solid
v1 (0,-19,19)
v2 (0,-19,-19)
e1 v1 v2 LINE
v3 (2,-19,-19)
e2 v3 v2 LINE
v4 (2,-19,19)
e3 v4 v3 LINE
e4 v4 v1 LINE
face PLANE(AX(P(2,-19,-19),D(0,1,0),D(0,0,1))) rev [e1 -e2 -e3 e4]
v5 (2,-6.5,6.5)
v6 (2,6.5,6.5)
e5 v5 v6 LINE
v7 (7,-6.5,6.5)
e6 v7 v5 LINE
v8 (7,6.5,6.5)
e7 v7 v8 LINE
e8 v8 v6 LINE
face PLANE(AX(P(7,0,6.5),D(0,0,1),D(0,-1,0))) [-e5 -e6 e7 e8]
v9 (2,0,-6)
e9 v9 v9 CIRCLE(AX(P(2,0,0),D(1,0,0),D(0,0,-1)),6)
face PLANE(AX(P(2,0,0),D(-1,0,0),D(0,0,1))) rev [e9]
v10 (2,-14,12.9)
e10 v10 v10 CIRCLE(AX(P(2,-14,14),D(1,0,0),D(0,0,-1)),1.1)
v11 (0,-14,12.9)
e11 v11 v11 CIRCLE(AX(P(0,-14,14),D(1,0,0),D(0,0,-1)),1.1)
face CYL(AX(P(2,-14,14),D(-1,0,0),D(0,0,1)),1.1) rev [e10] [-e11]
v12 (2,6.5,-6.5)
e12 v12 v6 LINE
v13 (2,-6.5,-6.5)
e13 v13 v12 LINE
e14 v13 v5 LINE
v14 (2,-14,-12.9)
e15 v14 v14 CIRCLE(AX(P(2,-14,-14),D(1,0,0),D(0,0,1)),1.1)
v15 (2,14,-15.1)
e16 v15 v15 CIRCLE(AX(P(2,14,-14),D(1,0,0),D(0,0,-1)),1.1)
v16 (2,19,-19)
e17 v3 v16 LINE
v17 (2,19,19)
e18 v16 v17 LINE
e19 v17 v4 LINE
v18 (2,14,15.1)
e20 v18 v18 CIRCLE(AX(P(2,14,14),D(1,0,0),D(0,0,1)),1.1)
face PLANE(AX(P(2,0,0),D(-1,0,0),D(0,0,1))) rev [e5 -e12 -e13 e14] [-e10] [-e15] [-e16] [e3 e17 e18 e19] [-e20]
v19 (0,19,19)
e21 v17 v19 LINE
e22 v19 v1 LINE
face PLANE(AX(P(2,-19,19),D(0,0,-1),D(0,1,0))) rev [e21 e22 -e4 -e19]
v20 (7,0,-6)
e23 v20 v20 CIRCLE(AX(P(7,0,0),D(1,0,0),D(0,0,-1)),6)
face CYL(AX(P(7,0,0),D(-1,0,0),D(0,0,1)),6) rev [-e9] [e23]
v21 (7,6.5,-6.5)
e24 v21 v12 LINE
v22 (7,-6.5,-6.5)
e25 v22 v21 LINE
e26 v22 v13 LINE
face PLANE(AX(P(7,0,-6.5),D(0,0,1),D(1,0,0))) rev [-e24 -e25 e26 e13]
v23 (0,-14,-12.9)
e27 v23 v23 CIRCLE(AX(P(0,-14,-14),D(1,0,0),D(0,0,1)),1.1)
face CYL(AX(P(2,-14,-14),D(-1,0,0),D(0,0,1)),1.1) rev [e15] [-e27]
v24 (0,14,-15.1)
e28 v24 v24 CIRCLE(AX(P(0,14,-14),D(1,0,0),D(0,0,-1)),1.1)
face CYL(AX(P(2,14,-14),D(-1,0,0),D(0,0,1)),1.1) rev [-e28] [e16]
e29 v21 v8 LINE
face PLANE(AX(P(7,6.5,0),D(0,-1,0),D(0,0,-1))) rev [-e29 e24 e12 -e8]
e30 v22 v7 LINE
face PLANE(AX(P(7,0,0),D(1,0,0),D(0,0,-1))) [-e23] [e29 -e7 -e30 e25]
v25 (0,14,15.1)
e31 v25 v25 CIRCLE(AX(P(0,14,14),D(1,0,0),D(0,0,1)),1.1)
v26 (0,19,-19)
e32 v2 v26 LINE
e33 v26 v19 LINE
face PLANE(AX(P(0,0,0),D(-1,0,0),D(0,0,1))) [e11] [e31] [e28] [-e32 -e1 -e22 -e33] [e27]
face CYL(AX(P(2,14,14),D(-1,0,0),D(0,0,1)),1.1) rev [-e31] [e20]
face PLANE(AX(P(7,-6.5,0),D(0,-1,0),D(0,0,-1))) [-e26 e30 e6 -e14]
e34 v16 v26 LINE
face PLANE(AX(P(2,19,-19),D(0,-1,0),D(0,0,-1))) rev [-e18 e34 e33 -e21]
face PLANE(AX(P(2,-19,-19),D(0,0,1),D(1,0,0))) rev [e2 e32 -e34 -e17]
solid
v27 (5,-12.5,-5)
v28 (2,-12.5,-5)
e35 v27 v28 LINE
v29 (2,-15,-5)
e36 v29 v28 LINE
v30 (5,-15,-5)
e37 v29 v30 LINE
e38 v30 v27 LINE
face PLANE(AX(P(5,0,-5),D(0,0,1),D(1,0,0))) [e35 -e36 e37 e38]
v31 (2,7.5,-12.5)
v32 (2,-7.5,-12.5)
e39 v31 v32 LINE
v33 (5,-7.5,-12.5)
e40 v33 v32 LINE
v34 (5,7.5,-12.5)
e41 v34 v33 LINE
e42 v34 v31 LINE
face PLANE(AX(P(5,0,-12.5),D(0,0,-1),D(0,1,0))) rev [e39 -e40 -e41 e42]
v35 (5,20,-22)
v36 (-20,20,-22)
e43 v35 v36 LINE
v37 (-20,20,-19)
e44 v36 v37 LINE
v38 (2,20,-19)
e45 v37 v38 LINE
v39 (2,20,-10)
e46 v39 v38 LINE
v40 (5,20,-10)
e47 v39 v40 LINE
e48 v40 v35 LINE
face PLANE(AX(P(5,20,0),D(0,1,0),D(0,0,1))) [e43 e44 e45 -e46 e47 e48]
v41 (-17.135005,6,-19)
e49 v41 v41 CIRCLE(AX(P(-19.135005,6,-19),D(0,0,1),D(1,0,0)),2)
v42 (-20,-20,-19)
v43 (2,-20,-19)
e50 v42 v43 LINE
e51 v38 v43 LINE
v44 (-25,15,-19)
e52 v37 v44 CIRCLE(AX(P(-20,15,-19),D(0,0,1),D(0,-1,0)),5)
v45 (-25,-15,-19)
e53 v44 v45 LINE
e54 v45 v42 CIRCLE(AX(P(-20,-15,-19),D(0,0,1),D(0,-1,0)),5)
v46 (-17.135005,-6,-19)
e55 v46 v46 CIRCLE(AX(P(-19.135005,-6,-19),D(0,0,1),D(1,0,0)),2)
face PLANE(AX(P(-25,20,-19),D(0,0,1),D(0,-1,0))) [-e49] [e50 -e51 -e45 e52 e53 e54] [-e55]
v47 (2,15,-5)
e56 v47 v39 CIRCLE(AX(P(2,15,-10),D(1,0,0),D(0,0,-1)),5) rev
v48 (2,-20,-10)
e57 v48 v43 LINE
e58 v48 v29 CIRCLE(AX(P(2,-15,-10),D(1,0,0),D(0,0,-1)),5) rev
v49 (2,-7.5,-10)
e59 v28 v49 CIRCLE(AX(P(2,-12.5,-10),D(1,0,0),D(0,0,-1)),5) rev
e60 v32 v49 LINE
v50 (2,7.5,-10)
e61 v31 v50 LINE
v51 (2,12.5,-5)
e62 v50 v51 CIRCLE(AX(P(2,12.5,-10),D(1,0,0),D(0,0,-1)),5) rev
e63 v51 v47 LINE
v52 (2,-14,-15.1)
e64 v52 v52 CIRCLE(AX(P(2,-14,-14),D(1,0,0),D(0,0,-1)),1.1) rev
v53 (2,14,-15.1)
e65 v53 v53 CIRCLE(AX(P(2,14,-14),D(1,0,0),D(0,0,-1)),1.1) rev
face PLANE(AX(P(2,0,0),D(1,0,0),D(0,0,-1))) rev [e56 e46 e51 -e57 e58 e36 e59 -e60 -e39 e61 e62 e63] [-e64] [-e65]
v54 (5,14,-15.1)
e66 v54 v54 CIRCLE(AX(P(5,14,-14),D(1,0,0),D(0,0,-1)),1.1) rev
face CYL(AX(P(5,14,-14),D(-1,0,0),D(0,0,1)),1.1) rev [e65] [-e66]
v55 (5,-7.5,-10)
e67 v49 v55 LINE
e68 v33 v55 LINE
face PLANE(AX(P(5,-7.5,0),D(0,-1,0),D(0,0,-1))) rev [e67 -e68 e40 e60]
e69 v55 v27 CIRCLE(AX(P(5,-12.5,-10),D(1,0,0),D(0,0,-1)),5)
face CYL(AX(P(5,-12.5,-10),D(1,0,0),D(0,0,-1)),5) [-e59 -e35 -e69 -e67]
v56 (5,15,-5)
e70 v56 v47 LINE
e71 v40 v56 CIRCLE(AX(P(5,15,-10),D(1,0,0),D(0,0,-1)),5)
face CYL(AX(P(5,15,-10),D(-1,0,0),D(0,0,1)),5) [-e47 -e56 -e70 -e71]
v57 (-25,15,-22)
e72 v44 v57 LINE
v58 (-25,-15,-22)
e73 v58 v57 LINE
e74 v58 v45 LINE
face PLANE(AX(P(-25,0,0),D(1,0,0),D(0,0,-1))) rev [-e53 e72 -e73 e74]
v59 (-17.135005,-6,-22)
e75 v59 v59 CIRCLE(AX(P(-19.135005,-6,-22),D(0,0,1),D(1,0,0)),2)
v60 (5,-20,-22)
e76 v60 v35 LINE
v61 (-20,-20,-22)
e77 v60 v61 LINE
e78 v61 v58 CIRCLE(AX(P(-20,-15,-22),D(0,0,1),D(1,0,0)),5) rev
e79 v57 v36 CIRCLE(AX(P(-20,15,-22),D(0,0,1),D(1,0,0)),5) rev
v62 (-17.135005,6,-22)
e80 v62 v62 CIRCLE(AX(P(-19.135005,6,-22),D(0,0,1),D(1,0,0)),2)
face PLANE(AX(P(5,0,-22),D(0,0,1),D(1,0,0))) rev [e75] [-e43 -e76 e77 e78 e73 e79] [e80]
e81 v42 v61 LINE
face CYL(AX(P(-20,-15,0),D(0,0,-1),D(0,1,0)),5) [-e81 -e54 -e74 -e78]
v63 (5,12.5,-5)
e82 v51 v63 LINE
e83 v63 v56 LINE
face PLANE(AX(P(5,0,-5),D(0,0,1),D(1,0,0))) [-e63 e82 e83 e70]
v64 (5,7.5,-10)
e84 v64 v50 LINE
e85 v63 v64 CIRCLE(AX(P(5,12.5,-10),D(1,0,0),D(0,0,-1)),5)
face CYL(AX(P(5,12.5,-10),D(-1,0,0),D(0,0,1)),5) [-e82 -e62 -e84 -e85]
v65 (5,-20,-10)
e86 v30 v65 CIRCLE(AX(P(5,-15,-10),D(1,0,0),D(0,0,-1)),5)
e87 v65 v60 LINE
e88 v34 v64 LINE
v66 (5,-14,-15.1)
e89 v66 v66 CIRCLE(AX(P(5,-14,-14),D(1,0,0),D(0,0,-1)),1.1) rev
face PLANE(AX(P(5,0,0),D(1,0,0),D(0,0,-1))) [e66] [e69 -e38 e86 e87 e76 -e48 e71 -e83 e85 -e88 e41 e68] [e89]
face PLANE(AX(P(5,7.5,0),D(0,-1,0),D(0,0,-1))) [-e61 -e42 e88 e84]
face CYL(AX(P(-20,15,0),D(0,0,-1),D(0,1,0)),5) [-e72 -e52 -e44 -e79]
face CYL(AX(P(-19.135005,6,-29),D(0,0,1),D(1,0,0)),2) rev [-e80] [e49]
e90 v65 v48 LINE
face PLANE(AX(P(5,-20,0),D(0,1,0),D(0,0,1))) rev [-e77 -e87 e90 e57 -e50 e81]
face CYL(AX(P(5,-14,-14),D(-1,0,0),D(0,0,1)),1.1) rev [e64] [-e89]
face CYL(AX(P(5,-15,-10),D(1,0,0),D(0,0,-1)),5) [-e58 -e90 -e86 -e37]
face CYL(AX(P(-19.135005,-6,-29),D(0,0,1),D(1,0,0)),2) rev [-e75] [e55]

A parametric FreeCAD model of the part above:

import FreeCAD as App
import Part
import Sketcher

V = App.Vector
Q = App.Units.Quantity


def edges_at(feature, points):
    """Names of the edges that pass closest to the given points."""
    edges = feature.Shape.Edges
    near = lambda p: min(range(len(edges)), key=lambda i: edges[i].distToShape(Part.Vertex(*p))[0])
    return sorted({f"Edge{near(p) + 1}" for p in points})


def add_polygon(sketch, points):
    """Adds a closed chain of lines whose ends are joined by coincident constraints."""
    first, n = sketch.GeometryCount, len(points)
    for a, b in zip(points, points[1:] + points[:1]):
        sketch.addGeometry(Part.LineSegment(App.Vector(*a, 0), App.Vector(*b, 0)), False)
    for i in range(n):
        sketch.addConstraint(Sketcher.Constraint("Coincident", first + i, 2, first + (i + 1) % n, 1))

doc = App.newDocument("Part")
body = doc.addObject("PartDesign::Body", "Body")

# Sketch on YZ plane
sketch1 = body.newObject("Sketcher::SketchObject", "Sketch")
sketch1.AttachmentSupport = (doc.getObject("YZ_Plane"), [""])
sketch1.MapMode = "FlatFace"
add_polygon(sketch1, [(-19, 19), (-19, -19), (19, -19), (19, 19)])  # lines 0-3
sketch1.addGeometry(Part.Circle(V(-14, -14, 0), V(0, 0, 1), 1.1), False)  # 4
sketch1.addGeometry(Part.Circle(V(14, -14, 0), V(0, 0, 1), 1.1), False)  # 5
sketch1.addGeometry(Part.Circle(V(-14, 14, 0), V(0, 0, 1), 1.1), False)  # 6
sketch1.addGeometry(Part.Circle(V(14, 14, 0), V(0, 0, 1), 1.1), False)  # 7
sketch1.addConstraint([
    Sketcher.Constraint("Vertical", 0),
    Sketcher.Constraint("Horizontal", 1),
    Sketcher.Constraint("Vertical", 2),
    Sketcher.Constraint("Horizontal", 3),
    Sketcher.Constraint("Equal", 4, 5),
    Sketcher.Constraint("Equal", 5, 6),
    Sketcher.Constraint("Equal", 6, 7),
    Sketcher.Constraint("Symmetric", 5, 3, 6, 3, -1, 1),
    Sketcher.Constraint("Symmetric", 4, 3, 7, 3, -1, 1),
    Sketcher.Constraint("Symmetric", 0, 2, 2, 2, -1, 1),
    Sketcher.Constraint("Symmetric", 4, 3, 5, 3, -2),
    Sketcher.Constraint("Equal", 3, 0),
    Sketcher.Constraint("Diameter", 4, Q("2.2 mm")),
    Sketcher.Constraint("DistanceX", 1, 1, 1, 2, Q("38 mm")),
    Sketcher.Constraint("DistanceX", 4, 3, -1, 1, Q("14 mm")),
    Sketcher.Constraint("DistanceY", 4, 3, -1, 1, Q("14 mm")),
])
pad1 = body.newObject("PartDesign::Pad", "Pad")
pad1.Profile = sketch1
pad1.Length = 2

# Sketch on YZ plane
sketch2 = body.newObject("Sketcher::SketchObject", "Sketch001")
sketch2.AttachmentSupport = (doc.getObject("YZ_Plane"), [""])
sketch2.MapMode = "FlatFace"
sketch2.AttachmentOffset = App.Placement(V(0, 0, 2), App.Rotation())
add_polygon(sketch2, [(-6, 6), (-6, -6), (6, -6), (6, 6)])  # lines 0-3
sketch2.addGeometry(Part.Circle(V(0, 0, 0), V(0, 0, 1), 6), False)  # 4
sketch2.addConstraint([
    Sketcher.Constraint("Vertical", 0),
    Sketcher.Constraint("Horizontal", 1),
    Sketcher.Constraint("Vertical", 2),
    Sketcher.Constraint("Horizontal", 3),
    Sketcher.Constraint("Coincident", 4, 3, -1, 1),
    Sketcher.Constraint("Symmetric", 0, 2, 2, 2, -1, 1),
    Sketcher.Constraint("Equal", 3, 0),
    Sketcher.Constraint("Diameter", 4, Q("12 mm")),
    Sketcher.Constraint("DistanceX", 1, 1, 1, 2, Q("13 mm")),
])
pad2 = body.newObject("PartDesign::Pad", "Pad001")
pad2.Profile = sketch2
pad2.Length = 5
body2 = doc.addObject("PartDesign::Body", "Body001")

# Sketch on YZ plane
sketch3 = body2.newObject("Sketcher::SketchObject", "Sketch002")
sketch3.AttachmentSupport = (doc.getObject("YZ_Plane001"), [""])
sketch3.MapMode = "FlatFace"
sketch3.AttachmentOffset = App.Placement(V(0, 0, 2), App.Rotation())
add_polygon(sketch3, [(7.5, -5), (7.5, -12.5), (-7.5, -12.5), (-7.5, -5), (-20, -5), (-20, -22), (20, -22), (20, -5)])  # lines 0-7
sketch3.addGeometry(Part.Circle(V(-14, -14, 0), V(0, 0, 1), 1.1), False)  # 8
sketch3.addGeometry(Part.Circle(V(14, -14, 0), V(0, 0, 1), 1.1), False)  # 9
sketch3.addConstraint([
    Sketcher.Constraint("Vertical", 0),
    Sketcher.Constraint("Horizontal", 1),
    Sketcher.Constraint("Vertical", 2),
    Sketcher.Constraint("Horizontal", 3),
    Sketcher.Constraint("Vertical", 4),
    Sketcher.Constraint("Horizontal", 5),
    Sketcher.Constraint("Vertical", 6),
    Sketcher.Constraint("Horizontal", 7),
    Sketcher.Constraint("Equal", 8, 9),
    Sketcher.Constraint("Symmetric", 8, 3, 9, 3, -2),
    Sketcher.Constraint("Symmetric", 3, 2, 6, 2, -2),
    Sketcher.Constraint("Equal", 3, 7),
    Sketcher.Constraint("Diameter", 8, Q("2.2 mm")),
    Sketcher.Constraint("DistanceX", 1, 2, 1, 1, Q("15 mm")),
    Sketcher.Constraint("DistanceX", 5, 1, 5, 2, Q("40 mm")),
    Sketcher.Constraint("DistanceY", 4, 2, 4, 1, Q("17 mm")),
    Sketcher.Constraint("DistanceY", 0, 2, 0, 1, Q("7.5 mm")),
    Sketcher.Constraint("DistanceX", 8, 3, -1, 1, Q("14 mm")),
    Sketcher.Constraint("DistanceY", 8, 3, -1, 1, Q("14 mm")),
    Sketcher.Constraint("DistanceY", 2, 2, -1, 1, Q("5 mm")),
])
pad3 = body2.newObject("PartDesign::Pad", "Pad002")
pad3.Profile = sketch3
pad3.Length = 3

# Sketch on YZ plane
sketch4 = body2.newObject("Sketcher::SketchObject", "Sketch003")
sketch4.AttachmentSupport = (doc.getObject("YZ_Plane001"), [""])
sketch4.MapMode = "FlatFace"
sketch4.AttachmentOffset = App.Placement(V(0, 0, 5), App.Rotation())
add_polygon(sketch4, [(-20, -19), (-20, -22), (20, -22), (20, -19)])  # lines 0-3
sketch4.addConstraint([
    Sketcher.Constraint("Vertical", 0),
    Sketcher.Constraint("Horizontal", 1),
    Sketcher.Constraint("Vertical", 2),
    Sketcher.Constraint("Horizontal", 3),
    Sketcher.Constraint("DistanceX", 1, 1, 1, 2, Q("40 mm")),
    Sketcher.Constraint("DistanceY", 0, 2, 0, 1, Q("3 mm")),
    Sketcher.Constraint("DistanceX", 0, 2, -1, 1, Q("20 mm")),
    Sketcher.Constraint("DistanceY", 0, 2, -1, 1, Q("22 mm")),
])
pad4 = body2.newObject("PartDesign::Pad", "Pad003")
pad4.Profile = sketch4
pad4.Length = 30
pad4.Reversed = True

# Sketch on XY plane
sketch5 = body2.newObject("Sketcher::SketchObject", "Sketch004")
sketch5.AttachmentSupport = (doc.getObject("XY_Plane001"), [""])
sketch5.MapMode = "FlatFace"
sketch5.AttachmentOffset = App.Placement(V(0, 0, -19), App.Rotation())
sketch5.addGeometry([
    Part.Circle(V(-19.1, 6, 0), V(0, 0, 1), 2),
    Part.Circle(V(-19.1, -6, 0), V(0, 0, 1), 2),
], False)
sketch5.addConstraint([
    Sketcher.Constraint("Equal", 0, 1),
    Sketcher.Constraint("Symmetric", 0, 3, 1, 3, -1),
    Sketcher.Constraint("Diameter", 0, Q("4 mm")),
    Sketcher.Constraint("DistanceY", -1, 1, 0, 3, Q("6 mm")),
    Sketcher.Constraint("DistanceX", 0, 3, -1, 1, Q("19.135005 mm")),
])
pocket1 = body2.newObject("PartDesign::Pocket", "Pocket")
pocket1.Profile = sketch5
pocket1.Length = 10
doc.recompute()

fillet = body2.newObject("PartDesign::Fillet", "Fillet")
fillet.Base = (pocket1, edges_at(pocket1, [
    (3.5, 7.5, -5),
    (3.5, 20, -5),
    (3.5, -20, -5),
    (3.5, -7.5, -5),
    (-25, 20, -20.5),
    (-25, -20, -20.5),
]))
fillet.Radius = 5

doc.recompute()
